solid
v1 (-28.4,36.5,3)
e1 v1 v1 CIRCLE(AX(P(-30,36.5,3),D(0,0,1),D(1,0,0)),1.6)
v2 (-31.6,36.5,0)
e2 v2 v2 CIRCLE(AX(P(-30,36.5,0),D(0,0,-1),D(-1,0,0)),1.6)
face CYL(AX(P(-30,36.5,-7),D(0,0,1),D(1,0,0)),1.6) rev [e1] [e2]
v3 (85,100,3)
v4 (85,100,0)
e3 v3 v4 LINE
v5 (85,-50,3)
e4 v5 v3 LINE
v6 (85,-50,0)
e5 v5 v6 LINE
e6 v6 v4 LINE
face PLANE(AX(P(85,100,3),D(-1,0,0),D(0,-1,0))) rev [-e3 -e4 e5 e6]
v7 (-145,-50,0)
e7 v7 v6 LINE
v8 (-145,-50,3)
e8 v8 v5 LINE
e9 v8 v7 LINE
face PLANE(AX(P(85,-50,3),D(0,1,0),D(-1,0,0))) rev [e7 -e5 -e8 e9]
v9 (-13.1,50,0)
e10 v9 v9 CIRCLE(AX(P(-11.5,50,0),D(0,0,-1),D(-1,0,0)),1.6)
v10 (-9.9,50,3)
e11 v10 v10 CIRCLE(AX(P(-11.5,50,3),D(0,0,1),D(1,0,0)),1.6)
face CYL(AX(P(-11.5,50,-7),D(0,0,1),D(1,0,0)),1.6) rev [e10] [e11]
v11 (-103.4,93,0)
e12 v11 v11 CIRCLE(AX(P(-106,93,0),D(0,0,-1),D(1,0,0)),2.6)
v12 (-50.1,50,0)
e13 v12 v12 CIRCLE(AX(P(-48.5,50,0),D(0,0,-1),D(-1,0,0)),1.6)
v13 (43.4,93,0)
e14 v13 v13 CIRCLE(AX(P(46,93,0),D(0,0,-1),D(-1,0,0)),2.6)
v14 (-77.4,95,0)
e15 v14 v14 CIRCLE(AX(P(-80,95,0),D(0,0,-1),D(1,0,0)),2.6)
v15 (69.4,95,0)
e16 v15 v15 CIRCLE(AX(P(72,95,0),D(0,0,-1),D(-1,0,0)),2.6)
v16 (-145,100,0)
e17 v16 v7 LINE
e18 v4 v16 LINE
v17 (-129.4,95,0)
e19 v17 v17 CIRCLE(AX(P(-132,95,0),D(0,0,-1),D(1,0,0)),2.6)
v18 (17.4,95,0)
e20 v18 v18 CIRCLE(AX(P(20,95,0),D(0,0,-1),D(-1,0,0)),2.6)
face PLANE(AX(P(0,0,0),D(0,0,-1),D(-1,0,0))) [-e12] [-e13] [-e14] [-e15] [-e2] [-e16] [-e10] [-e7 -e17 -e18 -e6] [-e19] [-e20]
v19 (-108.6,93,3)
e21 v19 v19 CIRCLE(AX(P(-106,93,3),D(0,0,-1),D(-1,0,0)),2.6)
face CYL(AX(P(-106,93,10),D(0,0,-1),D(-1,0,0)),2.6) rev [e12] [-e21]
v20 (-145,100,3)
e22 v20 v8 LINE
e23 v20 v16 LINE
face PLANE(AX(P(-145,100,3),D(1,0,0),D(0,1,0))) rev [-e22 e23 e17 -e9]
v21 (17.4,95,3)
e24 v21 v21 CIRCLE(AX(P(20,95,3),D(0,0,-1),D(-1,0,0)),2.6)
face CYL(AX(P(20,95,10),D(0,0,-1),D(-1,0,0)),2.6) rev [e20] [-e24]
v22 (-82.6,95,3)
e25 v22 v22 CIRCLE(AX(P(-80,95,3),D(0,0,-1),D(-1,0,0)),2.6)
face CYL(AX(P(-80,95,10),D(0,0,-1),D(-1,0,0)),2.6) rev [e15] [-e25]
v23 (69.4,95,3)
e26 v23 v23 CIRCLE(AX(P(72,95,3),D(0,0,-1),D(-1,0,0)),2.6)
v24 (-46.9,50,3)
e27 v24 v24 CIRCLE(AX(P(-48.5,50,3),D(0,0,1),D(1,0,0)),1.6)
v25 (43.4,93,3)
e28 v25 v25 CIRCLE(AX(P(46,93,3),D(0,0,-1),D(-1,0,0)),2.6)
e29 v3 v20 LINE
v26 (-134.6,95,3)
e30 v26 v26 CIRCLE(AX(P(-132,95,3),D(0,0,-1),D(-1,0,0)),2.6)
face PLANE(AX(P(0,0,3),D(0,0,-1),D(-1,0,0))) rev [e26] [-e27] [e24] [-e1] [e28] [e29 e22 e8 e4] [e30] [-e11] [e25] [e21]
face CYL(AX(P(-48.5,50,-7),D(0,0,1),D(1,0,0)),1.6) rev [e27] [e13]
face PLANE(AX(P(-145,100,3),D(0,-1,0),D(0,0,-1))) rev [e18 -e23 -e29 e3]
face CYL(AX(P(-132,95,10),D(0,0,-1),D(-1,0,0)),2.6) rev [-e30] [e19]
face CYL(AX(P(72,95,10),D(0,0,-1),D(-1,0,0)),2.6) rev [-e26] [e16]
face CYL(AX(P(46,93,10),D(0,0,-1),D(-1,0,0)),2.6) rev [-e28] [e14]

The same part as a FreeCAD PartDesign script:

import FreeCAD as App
import Part
import Sketcher
from FreeCAD import Vector


def add_polygon(sketch, points):
    """Adds a closed chain of lines whose ends are joined by coincident constraints."""
    first, n = sketch.GeometryCount, len(points)
    for a, b in zip(points, points[1:] + points[:1]):
        sketch.addGeometry(Part.LineSegment(App.Vector(*a, 0), App.Vector(*b, 0)), False)
    for i in range(n):
        sketch.addConstraint(Sketcher.Constraint("Coincident", first + i, 2, first + (i + 1) % n, 1))

doc = App.newDocument("Part")
params = doc.addObject("Spreadsheet::Sheet", "Params")
for row, (alias, value) in enumerate([
    ("sketch1_width", "230 mm"),
    ("sketch1_height", "150 mm"),
    ("pad1_length", "3 mm"),
    ("sketch2_diameter", "5.2 mm"),
    ("pocket1_length", "10 mm"),
    ("sketch3_diameter", "3.2 mm"),
    ("pocket2_length", "10 mm"),
], start=1):
    params.set(f"A{row}", alias)
    params.set(f"B{row}", "=" + value)
    params.setAlias(f"B{row}", alias)

body = doc.addObject("PartDesign::Body", "Body")

# Sketch on XY plane
sketch1 = body.newObject("Sketcher::SketchObject", "Sketch")
sketch1.AttachmentSupport = (doc.getObject("XY_Plane"), [""])
sketch1.MapMode = "FlatFace"
add_polygon(sketch1, [(-145, 100), (-145, -50), (85, -50), (85, 100)])  # lines 0-3
sketch1.addConstraint([
    Sketcher.Constraint("Vertical", 0),
    Sketcher.Constraint("Horizontal", 1),
    Sketcher.Constraint("Vertical", 2),
    Sketcher.Constraint("Horizontal", 3),
    Sketcher.Constraint("DistanceX", 1, 1, 1, 2, 230.0),
    Sketcher.Constraint("DistanceY", 0, 2, 0, 1, 150.0),
    Sketcher.Constraint("DistanceX", 0, 2, -1, 1, 145.0),
    Sketcher.Constraint("DistanceY", 0, 2, -1, 1, 50.0),
])
sketch1.setExpression("Constraints[8]", "Params.sketch1_width")
sketch1.setExpression("Constraints[9]", "Params.sketch1_height")
pad1 = body.newObject("PartDesign::Pad", "Pad")
pad1.Profile = sketch1
pad1.setExpression("Length", "Params.pad1_length")

# Sketch on XY plane
sketch2 = body.newObject("Sketcher::SketchObject", "Sketch001")
sketch2.AttachmentSupport = (doc.getObject("XY_Plane"), [""])
sketch2.MapMode = "FlatFace"
sketch2.addGeometry([
    Part.Circle(Vector(20, 95, 0), Vector(0, 0, 1), 2.6),  # 0
    Part.Circle(Vector(72, 95, 0), Vector(0, 0, 1), 2.6),  # 1
    Part.Circle(Vector(46, 93, 0), Vector(0, 0, 1), 2.6),  # 2
    Part.Circle(Vector(-132, 95, 0), Vector(0, 0, 1), 2.6),  # 3
    Part.Circle(Vector(-106, 93, 0), Vector(0, 0, 1), 2.6),  # 4
    Part.Circle(Vector(-80, 95, 0), Vector(0, 0, 1), 2.6),  # 5
], False)
sketch2.addConstraint([
    Sketcher.Constraint("Equal", 0, 1),
    Sketcher.Constraint("Equal", 1, 2),
    Sketcher.Constraint("Equal", 2, 3),
    Sketcher.Constraint("Equal", 3, 4),
    Sketcher.Constraint("Equal", 4, 5),
    Sketcher.Constraint("Horizontal", 0, 3, 1, 3),
    Sketcher.Constraint("Horizontal", 1, 3, 3, 3),
    Sketcher.Constraint("Horizontal", 2, 3, 4, 3),
    Sketcher.Constraint("Horizontal", 3, 3, 5, 3),
    Sketcher.Constraint("Diameter", 0, 5.2),
    Sketcher.Constraint("DistanceX", -1, 1, 0, 3, 20.0),
    Sketcher.Constraint("DistanceY", -1, 1, 0, 3, 95.0),
    Sketcher.Constraint("DistanceX", -1, 1, 1, 3, 72.0),
    Sketcher.Constraint("DistanceX", -1, 1, 2, 3, 46.0),
    Sketcher.Constraint("DistanceY", -1, 1, 2, 3, 93.0),
    Sketcher.Constraint("DistanceX", 3, 3, -1, 1, 132.0),
    Sketcher.Constraint("DistanceX", 4, 3, -1, 1, 106.0),
    Sketcher.Constraint("DistanceX", 5, 3, -1, 1, 80.0),
])
sketch2.setExpression("Constraints[9]", "Params.sketch2_diameter")
pocket1 = body.newObject("PartDesign::Pocket", "Pocket")
pocket1.Profile = sketch2
pocket1.setExpression("Length", "Params.pocket1_length")
pocket1.Reversed = True

# Sketch on XY plane
sketch3 = body.newObject("Sketcher::SketchObject", "Sketch002")
sketch3.AttachmentSupport = (doc.getObject("XY_Plane"), [""])
sketch3.MapMode = "FlatFace"
sketch3.AttachmentOffset = App.Placement(Vector(0, 0, 3), App.Rotation())
sketch3.addGeometry([
    Part.Circle(Vector(-30, 36.5, 0), Vector(0, 0, 1), 1.6),
    Part.Circle(Vector(-11.5, 50, 0), Vector(0, 0, 1), 1.6),
    Part.Circle(Vector(-48.5, 50, 0), Vector(0, 0, 1), 1.6),
], False)
sketch3.addConstraint([
    Sketcher.Constraint("Equal", 0, 1),
    Sketcher.Constraint("Equal", 1, 2),
    Sketcher.Constraint("Horizontal", 1, 3, 2, 3),
    Sketcher.Constraint("Diameter", 0, 3.2),
    Sketcher.Constraint("DistanceX", 0, 3, -1, 1, 30.0),
    Sketcher.Constraint("DistanceY", -1, 1, 1, 3, 50.0),
    Sketcher.Constraint("DistanceX", 2, 3, 1, 3, 37.0),
    Sketcher.Constraint("DistanceY", -1, 1, 0, 3, 36.5),
    Sketcher.Constraint("DistanceX", 1, 3, -1, 1, 11.5),
])
sketch3.setExpression("Constraints[3]", "Params.sketch3_diameter")
pocket2 = body.newObject("PartDesign::Pocket", "Pocket001")
pocket2.Profile = sketch3
pocket2.setExpression("Length", "Params.pocket2_length")

doc.recompute()
